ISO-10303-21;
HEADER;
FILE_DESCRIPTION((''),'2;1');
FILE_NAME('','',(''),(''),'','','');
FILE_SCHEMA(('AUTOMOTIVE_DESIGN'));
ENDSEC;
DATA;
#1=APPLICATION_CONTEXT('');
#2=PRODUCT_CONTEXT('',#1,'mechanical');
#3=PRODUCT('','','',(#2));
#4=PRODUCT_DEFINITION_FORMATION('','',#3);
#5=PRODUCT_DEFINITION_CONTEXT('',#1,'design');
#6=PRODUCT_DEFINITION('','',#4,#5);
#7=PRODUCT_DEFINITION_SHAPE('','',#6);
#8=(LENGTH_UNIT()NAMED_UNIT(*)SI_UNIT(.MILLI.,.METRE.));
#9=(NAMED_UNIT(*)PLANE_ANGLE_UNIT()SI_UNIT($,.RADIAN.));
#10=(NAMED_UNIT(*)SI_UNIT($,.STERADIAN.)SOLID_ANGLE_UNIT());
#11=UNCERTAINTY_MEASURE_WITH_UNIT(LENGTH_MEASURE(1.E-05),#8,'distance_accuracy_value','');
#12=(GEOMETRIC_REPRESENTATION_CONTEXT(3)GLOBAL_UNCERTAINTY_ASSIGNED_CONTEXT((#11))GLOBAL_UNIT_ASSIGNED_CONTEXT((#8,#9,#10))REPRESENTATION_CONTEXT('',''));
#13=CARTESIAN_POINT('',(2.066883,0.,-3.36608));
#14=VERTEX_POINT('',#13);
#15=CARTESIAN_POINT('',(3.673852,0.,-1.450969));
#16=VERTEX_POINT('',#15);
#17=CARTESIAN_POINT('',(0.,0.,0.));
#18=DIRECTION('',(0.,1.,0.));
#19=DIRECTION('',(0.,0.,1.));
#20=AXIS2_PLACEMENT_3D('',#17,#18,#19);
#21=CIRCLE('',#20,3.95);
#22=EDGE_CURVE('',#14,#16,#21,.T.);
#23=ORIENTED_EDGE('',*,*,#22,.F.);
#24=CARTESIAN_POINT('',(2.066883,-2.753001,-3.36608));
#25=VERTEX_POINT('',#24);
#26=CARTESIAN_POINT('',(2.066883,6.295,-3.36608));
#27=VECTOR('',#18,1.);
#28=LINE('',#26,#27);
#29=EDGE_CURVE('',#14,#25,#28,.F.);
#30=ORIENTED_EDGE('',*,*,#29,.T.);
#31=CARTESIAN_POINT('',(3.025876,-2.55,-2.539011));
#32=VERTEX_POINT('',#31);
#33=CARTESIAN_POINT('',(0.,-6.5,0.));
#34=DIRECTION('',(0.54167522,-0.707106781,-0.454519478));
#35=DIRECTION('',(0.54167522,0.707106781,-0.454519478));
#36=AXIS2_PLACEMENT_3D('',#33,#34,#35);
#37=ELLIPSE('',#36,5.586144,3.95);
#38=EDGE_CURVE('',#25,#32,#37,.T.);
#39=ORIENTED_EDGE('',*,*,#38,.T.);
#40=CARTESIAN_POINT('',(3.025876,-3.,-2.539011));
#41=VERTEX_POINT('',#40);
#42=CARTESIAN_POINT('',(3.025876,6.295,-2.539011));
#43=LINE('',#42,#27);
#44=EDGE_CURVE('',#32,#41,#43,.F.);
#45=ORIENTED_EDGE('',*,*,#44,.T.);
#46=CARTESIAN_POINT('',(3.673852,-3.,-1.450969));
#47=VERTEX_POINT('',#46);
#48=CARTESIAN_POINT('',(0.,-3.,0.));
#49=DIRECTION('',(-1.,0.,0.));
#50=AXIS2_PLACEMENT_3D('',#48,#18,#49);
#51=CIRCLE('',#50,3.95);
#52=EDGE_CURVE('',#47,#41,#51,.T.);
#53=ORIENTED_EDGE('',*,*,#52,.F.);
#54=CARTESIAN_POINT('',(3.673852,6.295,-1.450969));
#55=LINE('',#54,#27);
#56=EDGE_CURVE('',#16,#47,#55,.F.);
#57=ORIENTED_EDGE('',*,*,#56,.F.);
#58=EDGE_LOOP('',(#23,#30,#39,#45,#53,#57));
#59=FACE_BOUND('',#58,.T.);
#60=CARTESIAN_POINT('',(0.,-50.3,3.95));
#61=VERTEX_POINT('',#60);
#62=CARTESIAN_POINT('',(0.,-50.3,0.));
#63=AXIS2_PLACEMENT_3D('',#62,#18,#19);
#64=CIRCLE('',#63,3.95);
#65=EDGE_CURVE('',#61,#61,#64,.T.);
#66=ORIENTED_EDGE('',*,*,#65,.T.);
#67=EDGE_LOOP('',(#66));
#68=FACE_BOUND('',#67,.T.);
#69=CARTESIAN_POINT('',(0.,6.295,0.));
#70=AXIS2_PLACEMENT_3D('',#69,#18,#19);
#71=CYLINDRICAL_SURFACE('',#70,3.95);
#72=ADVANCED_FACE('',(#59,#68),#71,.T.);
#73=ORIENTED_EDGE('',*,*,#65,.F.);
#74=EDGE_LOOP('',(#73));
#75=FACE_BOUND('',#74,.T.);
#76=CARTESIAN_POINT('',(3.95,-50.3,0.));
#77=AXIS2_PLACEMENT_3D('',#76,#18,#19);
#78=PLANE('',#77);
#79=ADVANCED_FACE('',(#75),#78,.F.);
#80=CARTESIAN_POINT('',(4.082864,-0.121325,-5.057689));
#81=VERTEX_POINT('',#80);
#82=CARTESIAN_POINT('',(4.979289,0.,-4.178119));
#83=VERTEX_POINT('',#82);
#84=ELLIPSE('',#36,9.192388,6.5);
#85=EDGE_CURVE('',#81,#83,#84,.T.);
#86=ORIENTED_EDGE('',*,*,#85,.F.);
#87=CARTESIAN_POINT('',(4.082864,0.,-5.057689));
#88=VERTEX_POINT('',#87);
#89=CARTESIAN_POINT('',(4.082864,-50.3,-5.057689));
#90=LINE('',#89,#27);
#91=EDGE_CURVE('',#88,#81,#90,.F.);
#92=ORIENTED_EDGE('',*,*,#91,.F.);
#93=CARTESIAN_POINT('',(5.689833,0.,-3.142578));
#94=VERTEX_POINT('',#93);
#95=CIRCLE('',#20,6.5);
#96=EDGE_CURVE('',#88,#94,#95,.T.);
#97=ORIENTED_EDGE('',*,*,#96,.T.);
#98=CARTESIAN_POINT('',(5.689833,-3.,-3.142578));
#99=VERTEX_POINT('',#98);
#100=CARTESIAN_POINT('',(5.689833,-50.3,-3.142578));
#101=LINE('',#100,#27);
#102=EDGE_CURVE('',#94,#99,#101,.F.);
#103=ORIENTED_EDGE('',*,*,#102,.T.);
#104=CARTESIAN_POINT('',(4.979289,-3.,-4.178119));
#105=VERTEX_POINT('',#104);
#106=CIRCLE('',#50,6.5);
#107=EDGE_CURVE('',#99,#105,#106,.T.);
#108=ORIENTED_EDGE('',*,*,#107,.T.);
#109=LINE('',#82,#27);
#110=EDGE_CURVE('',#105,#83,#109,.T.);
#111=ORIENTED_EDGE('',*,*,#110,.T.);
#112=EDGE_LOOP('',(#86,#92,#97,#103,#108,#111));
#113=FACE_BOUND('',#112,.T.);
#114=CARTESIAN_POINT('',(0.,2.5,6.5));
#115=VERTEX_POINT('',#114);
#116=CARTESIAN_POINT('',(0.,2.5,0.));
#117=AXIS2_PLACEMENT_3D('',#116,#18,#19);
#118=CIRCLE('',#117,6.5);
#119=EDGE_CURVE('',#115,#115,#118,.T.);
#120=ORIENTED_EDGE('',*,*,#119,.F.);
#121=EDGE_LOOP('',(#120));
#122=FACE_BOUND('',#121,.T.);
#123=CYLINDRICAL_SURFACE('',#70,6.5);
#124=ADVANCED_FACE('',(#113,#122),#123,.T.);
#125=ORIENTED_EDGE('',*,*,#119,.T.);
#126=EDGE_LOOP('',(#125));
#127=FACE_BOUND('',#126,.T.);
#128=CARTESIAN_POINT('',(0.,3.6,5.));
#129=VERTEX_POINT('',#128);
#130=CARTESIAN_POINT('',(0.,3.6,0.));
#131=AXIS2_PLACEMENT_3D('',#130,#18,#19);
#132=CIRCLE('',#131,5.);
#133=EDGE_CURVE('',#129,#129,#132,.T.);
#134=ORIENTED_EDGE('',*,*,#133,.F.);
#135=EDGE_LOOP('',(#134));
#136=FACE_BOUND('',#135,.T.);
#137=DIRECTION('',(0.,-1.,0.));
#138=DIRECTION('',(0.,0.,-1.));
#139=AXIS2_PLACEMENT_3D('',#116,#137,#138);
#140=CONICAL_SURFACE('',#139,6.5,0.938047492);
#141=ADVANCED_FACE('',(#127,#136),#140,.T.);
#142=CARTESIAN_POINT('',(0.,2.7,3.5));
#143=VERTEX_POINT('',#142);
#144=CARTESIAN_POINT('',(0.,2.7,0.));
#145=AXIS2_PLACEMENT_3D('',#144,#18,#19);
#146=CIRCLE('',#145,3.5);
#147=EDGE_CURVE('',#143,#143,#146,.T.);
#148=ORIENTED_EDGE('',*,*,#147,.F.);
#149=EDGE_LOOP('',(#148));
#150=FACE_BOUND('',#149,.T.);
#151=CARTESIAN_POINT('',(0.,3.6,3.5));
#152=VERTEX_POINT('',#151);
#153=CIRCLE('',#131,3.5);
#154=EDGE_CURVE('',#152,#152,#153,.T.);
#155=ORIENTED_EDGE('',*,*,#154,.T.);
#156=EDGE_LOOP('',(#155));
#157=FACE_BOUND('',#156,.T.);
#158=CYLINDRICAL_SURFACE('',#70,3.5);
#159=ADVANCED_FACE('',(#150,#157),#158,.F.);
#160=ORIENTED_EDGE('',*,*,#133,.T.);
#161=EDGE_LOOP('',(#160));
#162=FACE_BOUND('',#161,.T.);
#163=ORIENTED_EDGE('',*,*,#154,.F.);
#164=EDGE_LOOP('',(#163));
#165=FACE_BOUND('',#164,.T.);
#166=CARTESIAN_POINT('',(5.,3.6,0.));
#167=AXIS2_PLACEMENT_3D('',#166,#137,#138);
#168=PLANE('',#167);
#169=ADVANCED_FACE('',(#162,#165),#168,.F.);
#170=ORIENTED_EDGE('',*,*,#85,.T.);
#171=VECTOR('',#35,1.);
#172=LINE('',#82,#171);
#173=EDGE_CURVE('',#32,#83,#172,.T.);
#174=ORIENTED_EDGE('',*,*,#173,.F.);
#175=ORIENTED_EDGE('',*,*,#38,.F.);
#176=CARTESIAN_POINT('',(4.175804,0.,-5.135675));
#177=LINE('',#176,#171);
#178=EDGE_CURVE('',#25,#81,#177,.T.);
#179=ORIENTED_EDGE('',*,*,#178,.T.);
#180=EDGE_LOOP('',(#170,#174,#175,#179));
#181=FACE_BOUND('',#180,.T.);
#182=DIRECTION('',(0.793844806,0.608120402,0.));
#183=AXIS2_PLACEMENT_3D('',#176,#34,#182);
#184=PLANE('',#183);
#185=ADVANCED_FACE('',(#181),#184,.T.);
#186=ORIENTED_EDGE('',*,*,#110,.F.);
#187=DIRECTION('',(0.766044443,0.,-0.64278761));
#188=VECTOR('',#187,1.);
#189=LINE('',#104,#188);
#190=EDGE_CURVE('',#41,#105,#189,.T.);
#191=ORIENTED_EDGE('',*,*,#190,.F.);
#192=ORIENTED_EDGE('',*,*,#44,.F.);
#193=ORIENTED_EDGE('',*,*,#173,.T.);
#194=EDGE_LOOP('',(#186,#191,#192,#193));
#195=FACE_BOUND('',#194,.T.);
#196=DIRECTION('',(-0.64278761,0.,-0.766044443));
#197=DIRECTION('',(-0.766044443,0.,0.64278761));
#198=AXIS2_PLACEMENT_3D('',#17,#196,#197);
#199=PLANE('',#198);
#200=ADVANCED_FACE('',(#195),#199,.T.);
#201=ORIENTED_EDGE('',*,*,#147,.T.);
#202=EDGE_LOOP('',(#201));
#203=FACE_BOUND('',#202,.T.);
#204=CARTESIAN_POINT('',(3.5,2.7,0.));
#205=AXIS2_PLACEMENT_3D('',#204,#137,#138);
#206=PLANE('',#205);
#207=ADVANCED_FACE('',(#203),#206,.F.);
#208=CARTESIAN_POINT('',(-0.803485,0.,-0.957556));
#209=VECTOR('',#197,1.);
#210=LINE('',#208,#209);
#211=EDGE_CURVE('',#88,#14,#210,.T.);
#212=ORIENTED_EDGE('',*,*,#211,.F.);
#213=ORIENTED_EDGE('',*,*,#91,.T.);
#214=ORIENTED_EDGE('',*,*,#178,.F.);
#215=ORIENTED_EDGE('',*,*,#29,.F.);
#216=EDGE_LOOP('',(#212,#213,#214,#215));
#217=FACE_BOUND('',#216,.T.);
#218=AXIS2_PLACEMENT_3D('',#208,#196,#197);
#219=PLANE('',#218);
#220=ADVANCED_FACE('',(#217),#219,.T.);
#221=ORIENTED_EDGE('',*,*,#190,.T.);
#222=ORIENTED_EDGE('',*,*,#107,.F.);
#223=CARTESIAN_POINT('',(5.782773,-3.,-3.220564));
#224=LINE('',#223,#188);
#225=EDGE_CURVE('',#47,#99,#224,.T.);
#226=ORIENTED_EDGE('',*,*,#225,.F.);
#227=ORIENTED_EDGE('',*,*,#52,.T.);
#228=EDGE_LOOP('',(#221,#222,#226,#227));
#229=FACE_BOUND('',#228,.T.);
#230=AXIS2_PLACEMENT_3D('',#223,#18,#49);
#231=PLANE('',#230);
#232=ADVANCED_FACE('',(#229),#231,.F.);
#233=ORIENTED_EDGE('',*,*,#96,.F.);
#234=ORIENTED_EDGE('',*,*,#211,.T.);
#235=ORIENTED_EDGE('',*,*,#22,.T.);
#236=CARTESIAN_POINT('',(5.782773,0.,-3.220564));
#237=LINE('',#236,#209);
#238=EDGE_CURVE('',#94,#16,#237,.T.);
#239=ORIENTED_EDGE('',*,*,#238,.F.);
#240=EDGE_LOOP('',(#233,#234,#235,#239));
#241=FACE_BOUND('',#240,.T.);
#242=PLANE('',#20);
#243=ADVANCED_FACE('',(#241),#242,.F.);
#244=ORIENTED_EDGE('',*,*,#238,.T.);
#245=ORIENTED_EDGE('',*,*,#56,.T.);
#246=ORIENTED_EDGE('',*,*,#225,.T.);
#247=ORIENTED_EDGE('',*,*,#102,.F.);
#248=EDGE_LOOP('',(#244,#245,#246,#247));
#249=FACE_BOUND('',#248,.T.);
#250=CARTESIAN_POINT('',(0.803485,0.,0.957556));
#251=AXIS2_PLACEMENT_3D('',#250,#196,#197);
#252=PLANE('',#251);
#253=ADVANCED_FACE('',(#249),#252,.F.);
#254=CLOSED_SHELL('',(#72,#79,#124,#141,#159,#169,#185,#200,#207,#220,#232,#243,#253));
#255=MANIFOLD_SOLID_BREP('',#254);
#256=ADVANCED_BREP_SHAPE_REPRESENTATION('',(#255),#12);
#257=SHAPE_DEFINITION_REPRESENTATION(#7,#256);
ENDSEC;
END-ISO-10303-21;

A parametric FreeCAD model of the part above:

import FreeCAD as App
import Part
import Sketcher
from FreeCAD import Vector

doc = App.newDocument("Part")
params = doc.addObject("Spreadsheet::Sheet", "Params")
for row, (alias, value) in enumerate([
    ("sketch1_height", "50.3 mm"),
    ("sketch1_width", "3.95 mm"),
    ("revolution_angle", "360 deg"),
    ("sketch2_width", "6.5 mm"),
    ("sketch2_width2", "1.5 mm"),
    ("sketch2_width3", "3.5 mm"),
    ("sketch2_height", "2.5 mm"),
    ("sketch2_height2", "0.9 mm"),
    ("revolution2_angle", "360 deg"),
    ("sketch3_width", "6.5 mm"),
    ("pad1_length", "1.25 mm"),
    ("sketch4_height", "3 mm"),
    ("sketch4_width", "6.5 mm"),
    ("pad2_length", "1.25 mm"),
    ("sketch5_diameter", "13 mm"),
    ("sketch5_width", "26.39 mm"),
], start=1):
    params.set(f"A{row}", alias)
    params.set(f"B{row}", "=" + value)
    params.setAlias(f"B{row}", alias)

body = doc.addObject("PartDesign::Body", "Body")

sketch1 = body.newObject("Sketcher::SketchObject", "Sketch")
sketch1.AttachmentSupport = (doc.getObject("XY_Plane"), [""])
sketch1.MapMode = "FlatFace"
sketch1.addGeometry([
    Part.LineSegment(Vector(0, 0, 0), Vector(0, -50.3, 0)),
    Part.LineSegment(Vector(0, -50.3, 0), Vector(4, -50.3, 0)),
    Part.LineSegment(Vector(4, -50.3, 0), Vector(4, 0, 0)),
    Part.LineSegment(Vector(4, 0, 0), Vector(0, 0, 0)),
], False)
sketch1.addConstraint([
    Sketcher.Constraint("Coincident", 0, 2, 1, 1),
    Sketcher.Constraint("Coincident", 1, 2, 2, 1),
    Sketcher.Constraint("Coincident", 2, 2, 3, 1),
    Sketcher.Constraint("Coincident", 3, 2, 0, 1),
    Sketcher.Constraint("Vertical", 0),
    Sketcher.Constraint("Horizontal", 1),
    Sketcher.Constraint("Vertical", 2),
    Sketcher.Constraint("Horizontal", 3),
    Sketcher.Constraint("Coincident", 3, 2, -1, 1),
    Sketcher.Constraint("DistanceY", 0, 2, 0, 1, 50.3),
    Sketcher.Constraint("DistanceX", 1, 1, 1, 2, 3.95),
])
sketch1.setExpression("Constraints[9]", "Params.sketch1_height")
sketch1.setExpression("Constraints[10]", "Params.sketch1_width")
revolution = body.newObject("PartDesign::Revolution", "Revolution")
revolution.Profile = sketch1
revolution.ReferenceAxis = (sketch1, ["V_Axis"])
revolution.setExpression("Angle", "Params.revolution_angle")

sketch2 = body.newObject("Sketcher::SketchObject", "Sketch001")
sketch2.AttachmentSupport = (doc.getObject("XY_Plane"), [""])
sketch2.MapMode = "FlatFace"
sketch2.addGeometry([
    Part.LineSegment(Vector(0, 0, 0), Vector(6.5, 0, 0)),
    Part.LineSegment(Vector(6.5, 0, 0), Vector(6.5, 2.5, 0)),
    Part.LineSegment(Vector(6.5, 2.5, 0), Vector(5, 3.6, 0)),
    Part.LineSegment(Vector(5, 3.6, 0), Vector(3.5, 3.6, 0)),
    Part.LineSegment(Vector(3.5, 3.6, 0), Vector(3.5, 2.7, 0)),
    Part.LineSegment(Vector(3.5, 2.7, 0), Vector(0, 2.7, 0)),
    Part.LineSegment(Vector(0, 2.7, 0), Vector(0, 0, 0)),
], False)
sketch2.addConstraint([
    Sketcher.Constraint("Coincident", 0, 2, 1, 1),
    Sketcher.Constraint("Coincident", 1, 2, 2, 1),
    Sketcher.Constraint("Coincident", 2, 2, 3, 1),
    Sketcher.Constraint("Coincident", 3, 2, 4, 1),
    Sketcher.Constraint("Coincident", 4, 2, 5, 1),
    Sketcher.Constraint("Coincident", 5, 2, 6, 1),
    Sketcher.Constraint("Coincident", 6, 2, 0, 1),
    Sketcher.Constraint("Horizontal", 0),
    Sketcher.Constraint("Vertical", 1),
    Sketcher.Constraint("Horizontal", 3),
    Sketcher.Constraint("Vertical", 4),
    Sketcher.Constraint("Horizontal", 5),
    Sketcher.Constraint("Vertical", 6),
    Sketcher.Constraint("Coincident", 6, 2, -1, 1),
    Sketcher.Constraint("DistanceX", 0, 1, 0, 2, 6.5),
    Sketcher.Constraint("DistanceX", 3, 2, 3, 1, 1.5),
    Sketcher.Constraint("DistanceX", 5, 2, 5, 1, 3.5),
    Sketcher.Constraint("DistanceY", 1, 1, 1, 2, 2.5),
    Sketcher.Constraint("DistanceY", 4, 2, 4, 1, 0.9),
    Sketcher.Constraint("DistanceY", 6, 2, 6, 1, 2.7),
])
sketch2.setExpression("Constraints[14]", "Params.sketch2_width")
sketch2.setExpression("Constraints[15]", "Params.sketch2_width2")
sketch2.setExpression("Constraints[16]", "Params.sketch2_width3")
sketch2.setExpression("Constraints[17]", "Params.sketch2_height")
sketch2.setExpression("Constraints[18]", "Params.sketch2_height2")
revolution2 = body.newObject("PartDesign::Revolution", "Revolution001")
revolution2.Profile = sketch2
revolution2.ReferenceAxis = (sketch2, ["V_Axis"])
revolution2.setExpression("Angle", "Params.revolution2_angle")

sketch3 = body.newObject("Sketcher::SketchObject", "Sketch002")
sketch3.Placement = App.Placement(Vector(0, 0, 0), App.Rotation(Vector(0.766044443, 0, -0.64278761), Vector(0, 1, 0), Vector(0.64278761, 0, 0.766044443), "ZXY"))
sketch3.addGeometry([
    Part.LineSegment(Vector(7, 0, 0), Vector(0, 0, 0)),
    Part.LineSegment(Vector(0, 0, 0), Vector(0, -7, 0)),
    Part.LineSegment(Vector(0, -7, 0), Vector(7, 0, 0)),
], False)
sketch3.addConstraint([
    Sketcher.Constraint("Coincident", 0, 2, 1, 1),
    Sketcher.Constraint("Coincident", 1, 2, 2, 1),
    Sketcher.Constraint("Coincident", 2, 2, 0, 1),
    Sketcher.Constraint("Horizontal", 0),
    Sketcher.Constraint("Vertical", 1),
    Sketcher.Constraint("Coincident", 0, 2, -1, 1),
    Sketcher.Constraint("Equal", 0, 1),
    Sketcher.Constraint("DistanceX", 0, 2, 0, 1, 6.5),
])
sketch3.setExpression("Constraints[7]", "Params.sketch3_width")
pad1 = body.newObject("PartDesign::Pad", "Pad")
pad1.Profile = sketch3
pad1.setExpression("Length", "Params.pad1_length")
pad1.Reversed = True

sketch4 = body.newObject("Sketcher::SketchObject", "Sketch003")
sketch4.Placement = App.Placement(Vector(0, 0, 0), App.Rotation(Vector(0.766044443, 0, -0.64278761), Vector(0, 1, 0), Vector(0.64278761, 0, 0.766044443), "ZXY"))
sketch4.addGeometry([
    Part.LineSegment(Vector(0, 0, 0), Vector(0, -3, 0)),
    Part.LineSegment(Vector(0, -3, 0), Vector(6.5, -3, 0)),
    Part.LineSegment(Vector(6.5, -3, 0), Vector(6.5, 0, 0)),
    Part.LineSegment(Vector(6.5, 0, 0), Vector(0, 0, 0)),
], False)
sketch4.addConstraint([
    Sketcher.Constraint("Coincident", 0, 2, 1, 1),
    Sketcher.Constraint("Coincident", 1, 2, 2, 1),
    Sketcher.Constraint("Coincident", 2, 2, 3, 1),
    Sketcher.Constraint("Coincident", 3, 2, 0, 1),
    Sketcher.Constraint("Vertical", 0),
    Sketcher.Constraint("Horizontal", 1),
    Sketcher.Constraint("Vertical", 2),
    Sketcher.Constraint("Horizontal", 3),
    Sketcher.Constraint("Coincident", 3, 2, -1, 1),
    Sketcher.Constraint("DistanceY", 0, 2, 0, 1, 3.0),
    Sketcher.Constraint("DistanceX", 1, 1, 1, 2, 6.5),
])
sketch4.setExpression("Constraints[9]", "Params.sketch4_height")
sketch4.setExpression("Constraints[10]", "Params.sketch4_width")
pad2 = body.newObject("PartDesign::Pad", "Pad001")
pad2.Profile = sketch4
pad2.setExpression("Length", "Params.pad2_length")

sketch5 = body.newObject("Sketcher::SketchObject", "Sketch004")
sketch5.AttachmentSupport = (doc.getObject("XZ_Plane"), [""])
sketch5.MapMode = "FlatFace"
sketch5.AttachmentOffset = App.Placement(Vector(0, 0, -3.6), App.Rotation())
sketch5.addGeometry([
    Part.LineSegment(Vector(-13, -13, 0), Vector(-13, 13, 0)),
    Part.LineSegment(Vector(-13, 13, 0), Vector(13, 13, 0)),
    Part.LineSegment(Vector(13, 13, 0), Vector(13, -13, 0)),
    Part.LineSegment(Vector(13, -13, 0), Vector(-13, -13, 0)),
    Part.Circle(Vector(0, 0, 0), Vector(0, 0, 1), 6),
], False)
sketch5.addConstraint([
    Sketcher.Constraint("Coincident", 0, 2, 1, 1),
    Sketcher.Constraint("Coincident", 1, 2, 2, 1),
    Sketcher.Constraint("Coincident", 2, 2, 3, 1),
    Sketcher.Constraint("Coincident", 3, 2, 0, 1),
    Sketcher.Constraint("Vertical", 0),
    Sketcher.Constraint("Horizontal", 1),
    Sketcher.Constraint("Vertical", 2),
    Sketcher.Constraint("Horizontal", 3),
    Sketcher.Constraint("Coincident", 4, 3, -1, 1),
    Sketcher.Constraint("Symmetric", 0, 2, 2, 2, -1, 1),
    Sketcher.Constraint("Equal", 3, 0),
    Sketcher.Constraint("Diameter", 4, 13.0),
    Sketcher.Constraint("DistanceX", 1, 1, 1, 2, 26.39),
])
sketch5.setExpression("Constraints[11]", "Params.sketch5_diameter")
sketch5.setExpression("Constraints[12]", "Params.sketch5_width")
pocket1 = body.newObject("PartDesign::Pocket", "Pocket")
pocket1.Profile = sketch5
pocket1.Type = "ThroughAll"
pocket1.Reversed = True

doc.recompute()
